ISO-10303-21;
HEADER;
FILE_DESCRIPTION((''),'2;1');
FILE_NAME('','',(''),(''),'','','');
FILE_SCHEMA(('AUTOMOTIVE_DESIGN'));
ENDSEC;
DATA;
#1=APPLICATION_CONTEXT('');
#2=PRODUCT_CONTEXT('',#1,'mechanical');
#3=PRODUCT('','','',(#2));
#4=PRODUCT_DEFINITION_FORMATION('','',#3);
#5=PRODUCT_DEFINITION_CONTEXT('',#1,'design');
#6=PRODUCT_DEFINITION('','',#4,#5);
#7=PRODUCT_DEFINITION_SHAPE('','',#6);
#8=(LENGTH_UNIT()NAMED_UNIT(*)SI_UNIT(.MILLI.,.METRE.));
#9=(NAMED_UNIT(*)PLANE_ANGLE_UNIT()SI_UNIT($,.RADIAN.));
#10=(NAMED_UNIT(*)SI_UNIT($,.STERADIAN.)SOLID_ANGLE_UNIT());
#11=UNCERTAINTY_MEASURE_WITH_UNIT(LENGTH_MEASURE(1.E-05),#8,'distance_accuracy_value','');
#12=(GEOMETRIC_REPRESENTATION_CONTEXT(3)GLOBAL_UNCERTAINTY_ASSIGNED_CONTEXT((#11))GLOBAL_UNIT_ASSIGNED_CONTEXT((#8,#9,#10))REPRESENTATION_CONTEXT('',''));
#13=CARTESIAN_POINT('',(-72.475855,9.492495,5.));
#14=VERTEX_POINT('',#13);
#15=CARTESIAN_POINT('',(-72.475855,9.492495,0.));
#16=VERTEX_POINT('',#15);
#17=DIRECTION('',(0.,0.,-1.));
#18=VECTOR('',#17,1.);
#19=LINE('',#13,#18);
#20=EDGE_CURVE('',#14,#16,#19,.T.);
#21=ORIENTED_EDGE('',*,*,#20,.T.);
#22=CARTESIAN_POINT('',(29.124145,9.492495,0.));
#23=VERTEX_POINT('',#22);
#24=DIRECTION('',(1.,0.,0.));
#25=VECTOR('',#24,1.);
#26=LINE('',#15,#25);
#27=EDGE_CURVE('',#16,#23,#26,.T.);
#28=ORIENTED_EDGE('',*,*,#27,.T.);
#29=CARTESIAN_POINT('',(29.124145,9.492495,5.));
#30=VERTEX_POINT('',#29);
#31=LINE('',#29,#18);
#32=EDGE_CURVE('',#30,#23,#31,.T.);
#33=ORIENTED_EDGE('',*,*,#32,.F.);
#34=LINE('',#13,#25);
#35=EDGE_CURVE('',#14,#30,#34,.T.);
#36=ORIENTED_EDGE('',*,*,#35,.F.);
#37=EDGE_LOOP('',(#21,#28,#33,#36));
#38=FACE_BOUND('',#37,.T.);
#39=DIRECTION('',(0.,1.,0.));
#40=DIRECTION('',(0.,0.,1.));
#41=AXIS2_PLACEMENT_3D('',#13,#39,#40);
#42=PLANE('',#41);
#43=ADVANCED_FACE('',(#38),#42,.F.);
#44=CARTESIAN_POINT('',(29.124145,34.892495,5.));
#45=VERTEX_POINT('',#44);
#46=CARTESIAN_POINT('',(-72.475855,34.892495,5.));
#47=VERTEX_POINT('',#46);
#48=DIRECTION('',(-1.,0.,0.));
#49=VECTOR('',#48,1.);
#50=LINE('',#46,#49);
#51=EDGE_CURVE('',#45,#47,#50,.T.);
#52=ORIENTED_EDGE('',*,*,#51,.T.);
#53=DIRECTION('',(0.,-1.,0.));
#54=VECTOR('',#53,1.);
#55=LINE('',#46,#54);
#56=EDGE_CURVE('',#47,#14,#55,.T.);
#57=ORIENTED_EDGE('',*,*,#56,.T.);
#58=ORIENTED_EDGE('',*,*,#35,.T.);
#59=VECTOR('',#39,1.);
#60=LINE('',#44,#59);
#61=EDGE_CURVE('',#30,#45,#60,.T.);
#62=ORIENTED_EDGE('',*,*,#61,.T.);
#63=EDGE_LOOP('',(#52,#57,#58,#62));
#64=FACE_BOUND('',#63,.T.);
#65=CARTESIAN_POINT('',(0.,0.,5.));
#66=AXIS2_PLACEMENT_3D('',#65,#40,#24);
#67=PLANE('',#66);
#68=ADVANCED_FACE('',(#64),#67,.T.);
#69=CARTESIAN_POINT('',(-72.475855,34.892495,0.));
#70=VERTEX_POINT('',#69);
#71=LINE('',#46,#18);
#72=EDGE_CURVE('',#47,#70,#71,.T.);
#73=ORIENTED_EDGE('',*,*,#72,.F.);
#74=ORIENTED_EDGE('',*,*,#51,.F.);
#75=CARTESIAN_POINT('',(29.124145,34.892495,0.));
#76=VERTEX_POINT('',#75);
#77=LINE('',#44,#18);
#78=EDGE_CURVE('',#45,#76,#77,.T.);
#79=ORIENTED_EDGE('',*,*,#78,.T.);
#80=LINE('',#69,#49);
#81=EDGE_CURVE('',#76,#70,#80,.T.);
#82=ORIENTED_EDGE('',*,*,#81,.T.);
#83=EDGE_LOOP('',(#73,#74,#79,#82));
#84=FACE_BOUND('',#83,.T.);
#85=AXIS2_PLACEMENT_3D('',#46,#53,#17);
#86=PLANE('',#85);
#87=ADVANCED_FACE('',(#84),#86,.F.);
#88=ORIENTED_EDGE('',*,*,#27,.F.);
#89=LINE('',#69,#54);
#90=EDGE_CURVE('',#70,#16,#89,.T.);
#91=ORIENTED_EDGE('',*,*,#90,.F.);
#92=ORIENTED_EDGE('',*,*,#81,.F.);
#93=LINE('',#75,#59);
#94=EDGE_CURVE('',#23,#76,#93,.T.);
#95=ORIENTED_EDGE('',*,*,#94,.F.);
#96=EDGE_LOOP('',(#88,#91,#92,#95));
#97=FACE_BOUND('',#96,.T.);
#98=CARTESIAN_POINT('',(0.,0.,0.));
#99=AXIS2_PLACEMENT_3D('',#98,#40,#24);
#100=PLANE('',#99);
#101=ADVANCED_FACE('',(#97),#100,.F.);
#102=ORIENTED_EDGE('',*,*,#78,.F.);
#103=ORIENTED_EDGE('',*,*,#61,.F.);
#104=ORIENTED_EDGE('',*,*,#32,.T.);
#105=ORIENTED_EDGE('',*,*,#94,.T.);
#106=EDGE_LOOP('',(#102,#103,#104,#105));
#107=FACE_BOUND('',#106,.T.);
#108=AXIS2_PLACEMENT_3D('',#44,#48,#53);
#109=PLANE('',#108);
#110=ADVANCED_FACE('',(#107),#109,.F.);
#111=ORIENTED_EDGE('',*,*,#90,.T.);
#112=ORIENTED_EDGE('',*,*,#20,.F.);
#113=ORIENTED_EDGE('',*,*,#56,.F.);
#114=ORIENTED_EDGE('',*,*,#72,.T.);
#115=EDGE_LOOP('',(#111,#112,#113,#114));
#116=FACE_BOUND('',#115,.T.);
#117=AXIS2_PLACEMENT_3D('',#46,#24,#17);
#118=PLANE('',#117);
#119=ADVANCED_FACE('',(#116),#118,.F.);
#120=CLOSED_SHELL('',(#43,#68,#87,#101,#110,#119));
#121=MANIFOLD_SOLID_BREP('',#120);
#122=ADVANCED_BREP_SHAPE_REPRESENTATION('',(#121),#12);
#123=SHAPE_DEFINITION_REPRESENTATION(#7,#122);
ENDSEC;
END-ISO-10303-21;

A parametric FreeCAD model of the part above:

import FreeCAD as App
import Part
import Sketcher
from FreeCAD import Vector
Q = App.Units.Quantity

doc = App.newDocument("Part")
body = doc.addObject("PartDesign::Body", "Body")

sketch1 = body.newObject("Sketcher::SketchObject", "Sketch")
sketch1.AttachmentSupport = (doc.getObject("XY_Plane"), [""])
sketch1.MapMode = "FlatFace"
sketch1.addGeometry(Part.LineSegment(Vector(-72.475855, 34.892495, 0), Vector(-72.475855, 9.492495, 0)), False)
sketch1.addGeometry(Part.LineSegment(Vector(-72.475855, 9.492495, 0), Vector(29.124145, 9.492495, 0)), False)
sketch1.addGeometry(Part.LineSegment(Vector(29.124145, 9.492495, 0), Vector(29.124145, 34.892495, 0)), False)
sketch1.addGeometry(Part.LineSegment(Vector(29.124145, 34.892495, 0), Vector(-72.475855, 34.892495, 0)), False)
sketch1.addConstraint(Sketcher.Constraint("Coincident", 0, 2, 1, 1))
sketch1.addConstraint(Sketcher.Constraint("Coincident", 1, 2, 2, 1))
sketch1.addConstraint(Sketcher.Constraint("Coincident", 2, 2, 3, 1))
sketch1.addConstraint(Sketcher.Constraint("Coincident", 3, 2, 0, 1))
sketch1.addConstraint(Sketcher.Constraint("Vertical", 0))
sketch1.addConstraint(Sketcher.Constraint("Horizontal", 1))
sketch1.addConstraint(Sketcher.Constraint("Vertical", 2))
sketch1.addConstraint(Sketcher.Constraint("Horizontal", 3))
sketch1.addConstraint(Sketcher.Constraint("DistanceX", 1, 1, 1, 2, Q("4 in")))
sketch1.addConstraint(Sketcher.Constraint("DistanceY", 0, 2, 0, 1, Q("1 in")))
sketch1.addConstraint(Sketcher.Constraint("DistanceX", 0, 2, -1, 1, Q("72.475855 mm")))
sketch1.addConstraint(Sketcher.Constraint("DistanceY", -1, 1, 0, 2, Q("9.492495 mm")))
pad1 = body.newObject("PartDesign::Pad", "Pad")
pad1.Profile = sketch1
pad1.Length = 5

doc.recompute()
